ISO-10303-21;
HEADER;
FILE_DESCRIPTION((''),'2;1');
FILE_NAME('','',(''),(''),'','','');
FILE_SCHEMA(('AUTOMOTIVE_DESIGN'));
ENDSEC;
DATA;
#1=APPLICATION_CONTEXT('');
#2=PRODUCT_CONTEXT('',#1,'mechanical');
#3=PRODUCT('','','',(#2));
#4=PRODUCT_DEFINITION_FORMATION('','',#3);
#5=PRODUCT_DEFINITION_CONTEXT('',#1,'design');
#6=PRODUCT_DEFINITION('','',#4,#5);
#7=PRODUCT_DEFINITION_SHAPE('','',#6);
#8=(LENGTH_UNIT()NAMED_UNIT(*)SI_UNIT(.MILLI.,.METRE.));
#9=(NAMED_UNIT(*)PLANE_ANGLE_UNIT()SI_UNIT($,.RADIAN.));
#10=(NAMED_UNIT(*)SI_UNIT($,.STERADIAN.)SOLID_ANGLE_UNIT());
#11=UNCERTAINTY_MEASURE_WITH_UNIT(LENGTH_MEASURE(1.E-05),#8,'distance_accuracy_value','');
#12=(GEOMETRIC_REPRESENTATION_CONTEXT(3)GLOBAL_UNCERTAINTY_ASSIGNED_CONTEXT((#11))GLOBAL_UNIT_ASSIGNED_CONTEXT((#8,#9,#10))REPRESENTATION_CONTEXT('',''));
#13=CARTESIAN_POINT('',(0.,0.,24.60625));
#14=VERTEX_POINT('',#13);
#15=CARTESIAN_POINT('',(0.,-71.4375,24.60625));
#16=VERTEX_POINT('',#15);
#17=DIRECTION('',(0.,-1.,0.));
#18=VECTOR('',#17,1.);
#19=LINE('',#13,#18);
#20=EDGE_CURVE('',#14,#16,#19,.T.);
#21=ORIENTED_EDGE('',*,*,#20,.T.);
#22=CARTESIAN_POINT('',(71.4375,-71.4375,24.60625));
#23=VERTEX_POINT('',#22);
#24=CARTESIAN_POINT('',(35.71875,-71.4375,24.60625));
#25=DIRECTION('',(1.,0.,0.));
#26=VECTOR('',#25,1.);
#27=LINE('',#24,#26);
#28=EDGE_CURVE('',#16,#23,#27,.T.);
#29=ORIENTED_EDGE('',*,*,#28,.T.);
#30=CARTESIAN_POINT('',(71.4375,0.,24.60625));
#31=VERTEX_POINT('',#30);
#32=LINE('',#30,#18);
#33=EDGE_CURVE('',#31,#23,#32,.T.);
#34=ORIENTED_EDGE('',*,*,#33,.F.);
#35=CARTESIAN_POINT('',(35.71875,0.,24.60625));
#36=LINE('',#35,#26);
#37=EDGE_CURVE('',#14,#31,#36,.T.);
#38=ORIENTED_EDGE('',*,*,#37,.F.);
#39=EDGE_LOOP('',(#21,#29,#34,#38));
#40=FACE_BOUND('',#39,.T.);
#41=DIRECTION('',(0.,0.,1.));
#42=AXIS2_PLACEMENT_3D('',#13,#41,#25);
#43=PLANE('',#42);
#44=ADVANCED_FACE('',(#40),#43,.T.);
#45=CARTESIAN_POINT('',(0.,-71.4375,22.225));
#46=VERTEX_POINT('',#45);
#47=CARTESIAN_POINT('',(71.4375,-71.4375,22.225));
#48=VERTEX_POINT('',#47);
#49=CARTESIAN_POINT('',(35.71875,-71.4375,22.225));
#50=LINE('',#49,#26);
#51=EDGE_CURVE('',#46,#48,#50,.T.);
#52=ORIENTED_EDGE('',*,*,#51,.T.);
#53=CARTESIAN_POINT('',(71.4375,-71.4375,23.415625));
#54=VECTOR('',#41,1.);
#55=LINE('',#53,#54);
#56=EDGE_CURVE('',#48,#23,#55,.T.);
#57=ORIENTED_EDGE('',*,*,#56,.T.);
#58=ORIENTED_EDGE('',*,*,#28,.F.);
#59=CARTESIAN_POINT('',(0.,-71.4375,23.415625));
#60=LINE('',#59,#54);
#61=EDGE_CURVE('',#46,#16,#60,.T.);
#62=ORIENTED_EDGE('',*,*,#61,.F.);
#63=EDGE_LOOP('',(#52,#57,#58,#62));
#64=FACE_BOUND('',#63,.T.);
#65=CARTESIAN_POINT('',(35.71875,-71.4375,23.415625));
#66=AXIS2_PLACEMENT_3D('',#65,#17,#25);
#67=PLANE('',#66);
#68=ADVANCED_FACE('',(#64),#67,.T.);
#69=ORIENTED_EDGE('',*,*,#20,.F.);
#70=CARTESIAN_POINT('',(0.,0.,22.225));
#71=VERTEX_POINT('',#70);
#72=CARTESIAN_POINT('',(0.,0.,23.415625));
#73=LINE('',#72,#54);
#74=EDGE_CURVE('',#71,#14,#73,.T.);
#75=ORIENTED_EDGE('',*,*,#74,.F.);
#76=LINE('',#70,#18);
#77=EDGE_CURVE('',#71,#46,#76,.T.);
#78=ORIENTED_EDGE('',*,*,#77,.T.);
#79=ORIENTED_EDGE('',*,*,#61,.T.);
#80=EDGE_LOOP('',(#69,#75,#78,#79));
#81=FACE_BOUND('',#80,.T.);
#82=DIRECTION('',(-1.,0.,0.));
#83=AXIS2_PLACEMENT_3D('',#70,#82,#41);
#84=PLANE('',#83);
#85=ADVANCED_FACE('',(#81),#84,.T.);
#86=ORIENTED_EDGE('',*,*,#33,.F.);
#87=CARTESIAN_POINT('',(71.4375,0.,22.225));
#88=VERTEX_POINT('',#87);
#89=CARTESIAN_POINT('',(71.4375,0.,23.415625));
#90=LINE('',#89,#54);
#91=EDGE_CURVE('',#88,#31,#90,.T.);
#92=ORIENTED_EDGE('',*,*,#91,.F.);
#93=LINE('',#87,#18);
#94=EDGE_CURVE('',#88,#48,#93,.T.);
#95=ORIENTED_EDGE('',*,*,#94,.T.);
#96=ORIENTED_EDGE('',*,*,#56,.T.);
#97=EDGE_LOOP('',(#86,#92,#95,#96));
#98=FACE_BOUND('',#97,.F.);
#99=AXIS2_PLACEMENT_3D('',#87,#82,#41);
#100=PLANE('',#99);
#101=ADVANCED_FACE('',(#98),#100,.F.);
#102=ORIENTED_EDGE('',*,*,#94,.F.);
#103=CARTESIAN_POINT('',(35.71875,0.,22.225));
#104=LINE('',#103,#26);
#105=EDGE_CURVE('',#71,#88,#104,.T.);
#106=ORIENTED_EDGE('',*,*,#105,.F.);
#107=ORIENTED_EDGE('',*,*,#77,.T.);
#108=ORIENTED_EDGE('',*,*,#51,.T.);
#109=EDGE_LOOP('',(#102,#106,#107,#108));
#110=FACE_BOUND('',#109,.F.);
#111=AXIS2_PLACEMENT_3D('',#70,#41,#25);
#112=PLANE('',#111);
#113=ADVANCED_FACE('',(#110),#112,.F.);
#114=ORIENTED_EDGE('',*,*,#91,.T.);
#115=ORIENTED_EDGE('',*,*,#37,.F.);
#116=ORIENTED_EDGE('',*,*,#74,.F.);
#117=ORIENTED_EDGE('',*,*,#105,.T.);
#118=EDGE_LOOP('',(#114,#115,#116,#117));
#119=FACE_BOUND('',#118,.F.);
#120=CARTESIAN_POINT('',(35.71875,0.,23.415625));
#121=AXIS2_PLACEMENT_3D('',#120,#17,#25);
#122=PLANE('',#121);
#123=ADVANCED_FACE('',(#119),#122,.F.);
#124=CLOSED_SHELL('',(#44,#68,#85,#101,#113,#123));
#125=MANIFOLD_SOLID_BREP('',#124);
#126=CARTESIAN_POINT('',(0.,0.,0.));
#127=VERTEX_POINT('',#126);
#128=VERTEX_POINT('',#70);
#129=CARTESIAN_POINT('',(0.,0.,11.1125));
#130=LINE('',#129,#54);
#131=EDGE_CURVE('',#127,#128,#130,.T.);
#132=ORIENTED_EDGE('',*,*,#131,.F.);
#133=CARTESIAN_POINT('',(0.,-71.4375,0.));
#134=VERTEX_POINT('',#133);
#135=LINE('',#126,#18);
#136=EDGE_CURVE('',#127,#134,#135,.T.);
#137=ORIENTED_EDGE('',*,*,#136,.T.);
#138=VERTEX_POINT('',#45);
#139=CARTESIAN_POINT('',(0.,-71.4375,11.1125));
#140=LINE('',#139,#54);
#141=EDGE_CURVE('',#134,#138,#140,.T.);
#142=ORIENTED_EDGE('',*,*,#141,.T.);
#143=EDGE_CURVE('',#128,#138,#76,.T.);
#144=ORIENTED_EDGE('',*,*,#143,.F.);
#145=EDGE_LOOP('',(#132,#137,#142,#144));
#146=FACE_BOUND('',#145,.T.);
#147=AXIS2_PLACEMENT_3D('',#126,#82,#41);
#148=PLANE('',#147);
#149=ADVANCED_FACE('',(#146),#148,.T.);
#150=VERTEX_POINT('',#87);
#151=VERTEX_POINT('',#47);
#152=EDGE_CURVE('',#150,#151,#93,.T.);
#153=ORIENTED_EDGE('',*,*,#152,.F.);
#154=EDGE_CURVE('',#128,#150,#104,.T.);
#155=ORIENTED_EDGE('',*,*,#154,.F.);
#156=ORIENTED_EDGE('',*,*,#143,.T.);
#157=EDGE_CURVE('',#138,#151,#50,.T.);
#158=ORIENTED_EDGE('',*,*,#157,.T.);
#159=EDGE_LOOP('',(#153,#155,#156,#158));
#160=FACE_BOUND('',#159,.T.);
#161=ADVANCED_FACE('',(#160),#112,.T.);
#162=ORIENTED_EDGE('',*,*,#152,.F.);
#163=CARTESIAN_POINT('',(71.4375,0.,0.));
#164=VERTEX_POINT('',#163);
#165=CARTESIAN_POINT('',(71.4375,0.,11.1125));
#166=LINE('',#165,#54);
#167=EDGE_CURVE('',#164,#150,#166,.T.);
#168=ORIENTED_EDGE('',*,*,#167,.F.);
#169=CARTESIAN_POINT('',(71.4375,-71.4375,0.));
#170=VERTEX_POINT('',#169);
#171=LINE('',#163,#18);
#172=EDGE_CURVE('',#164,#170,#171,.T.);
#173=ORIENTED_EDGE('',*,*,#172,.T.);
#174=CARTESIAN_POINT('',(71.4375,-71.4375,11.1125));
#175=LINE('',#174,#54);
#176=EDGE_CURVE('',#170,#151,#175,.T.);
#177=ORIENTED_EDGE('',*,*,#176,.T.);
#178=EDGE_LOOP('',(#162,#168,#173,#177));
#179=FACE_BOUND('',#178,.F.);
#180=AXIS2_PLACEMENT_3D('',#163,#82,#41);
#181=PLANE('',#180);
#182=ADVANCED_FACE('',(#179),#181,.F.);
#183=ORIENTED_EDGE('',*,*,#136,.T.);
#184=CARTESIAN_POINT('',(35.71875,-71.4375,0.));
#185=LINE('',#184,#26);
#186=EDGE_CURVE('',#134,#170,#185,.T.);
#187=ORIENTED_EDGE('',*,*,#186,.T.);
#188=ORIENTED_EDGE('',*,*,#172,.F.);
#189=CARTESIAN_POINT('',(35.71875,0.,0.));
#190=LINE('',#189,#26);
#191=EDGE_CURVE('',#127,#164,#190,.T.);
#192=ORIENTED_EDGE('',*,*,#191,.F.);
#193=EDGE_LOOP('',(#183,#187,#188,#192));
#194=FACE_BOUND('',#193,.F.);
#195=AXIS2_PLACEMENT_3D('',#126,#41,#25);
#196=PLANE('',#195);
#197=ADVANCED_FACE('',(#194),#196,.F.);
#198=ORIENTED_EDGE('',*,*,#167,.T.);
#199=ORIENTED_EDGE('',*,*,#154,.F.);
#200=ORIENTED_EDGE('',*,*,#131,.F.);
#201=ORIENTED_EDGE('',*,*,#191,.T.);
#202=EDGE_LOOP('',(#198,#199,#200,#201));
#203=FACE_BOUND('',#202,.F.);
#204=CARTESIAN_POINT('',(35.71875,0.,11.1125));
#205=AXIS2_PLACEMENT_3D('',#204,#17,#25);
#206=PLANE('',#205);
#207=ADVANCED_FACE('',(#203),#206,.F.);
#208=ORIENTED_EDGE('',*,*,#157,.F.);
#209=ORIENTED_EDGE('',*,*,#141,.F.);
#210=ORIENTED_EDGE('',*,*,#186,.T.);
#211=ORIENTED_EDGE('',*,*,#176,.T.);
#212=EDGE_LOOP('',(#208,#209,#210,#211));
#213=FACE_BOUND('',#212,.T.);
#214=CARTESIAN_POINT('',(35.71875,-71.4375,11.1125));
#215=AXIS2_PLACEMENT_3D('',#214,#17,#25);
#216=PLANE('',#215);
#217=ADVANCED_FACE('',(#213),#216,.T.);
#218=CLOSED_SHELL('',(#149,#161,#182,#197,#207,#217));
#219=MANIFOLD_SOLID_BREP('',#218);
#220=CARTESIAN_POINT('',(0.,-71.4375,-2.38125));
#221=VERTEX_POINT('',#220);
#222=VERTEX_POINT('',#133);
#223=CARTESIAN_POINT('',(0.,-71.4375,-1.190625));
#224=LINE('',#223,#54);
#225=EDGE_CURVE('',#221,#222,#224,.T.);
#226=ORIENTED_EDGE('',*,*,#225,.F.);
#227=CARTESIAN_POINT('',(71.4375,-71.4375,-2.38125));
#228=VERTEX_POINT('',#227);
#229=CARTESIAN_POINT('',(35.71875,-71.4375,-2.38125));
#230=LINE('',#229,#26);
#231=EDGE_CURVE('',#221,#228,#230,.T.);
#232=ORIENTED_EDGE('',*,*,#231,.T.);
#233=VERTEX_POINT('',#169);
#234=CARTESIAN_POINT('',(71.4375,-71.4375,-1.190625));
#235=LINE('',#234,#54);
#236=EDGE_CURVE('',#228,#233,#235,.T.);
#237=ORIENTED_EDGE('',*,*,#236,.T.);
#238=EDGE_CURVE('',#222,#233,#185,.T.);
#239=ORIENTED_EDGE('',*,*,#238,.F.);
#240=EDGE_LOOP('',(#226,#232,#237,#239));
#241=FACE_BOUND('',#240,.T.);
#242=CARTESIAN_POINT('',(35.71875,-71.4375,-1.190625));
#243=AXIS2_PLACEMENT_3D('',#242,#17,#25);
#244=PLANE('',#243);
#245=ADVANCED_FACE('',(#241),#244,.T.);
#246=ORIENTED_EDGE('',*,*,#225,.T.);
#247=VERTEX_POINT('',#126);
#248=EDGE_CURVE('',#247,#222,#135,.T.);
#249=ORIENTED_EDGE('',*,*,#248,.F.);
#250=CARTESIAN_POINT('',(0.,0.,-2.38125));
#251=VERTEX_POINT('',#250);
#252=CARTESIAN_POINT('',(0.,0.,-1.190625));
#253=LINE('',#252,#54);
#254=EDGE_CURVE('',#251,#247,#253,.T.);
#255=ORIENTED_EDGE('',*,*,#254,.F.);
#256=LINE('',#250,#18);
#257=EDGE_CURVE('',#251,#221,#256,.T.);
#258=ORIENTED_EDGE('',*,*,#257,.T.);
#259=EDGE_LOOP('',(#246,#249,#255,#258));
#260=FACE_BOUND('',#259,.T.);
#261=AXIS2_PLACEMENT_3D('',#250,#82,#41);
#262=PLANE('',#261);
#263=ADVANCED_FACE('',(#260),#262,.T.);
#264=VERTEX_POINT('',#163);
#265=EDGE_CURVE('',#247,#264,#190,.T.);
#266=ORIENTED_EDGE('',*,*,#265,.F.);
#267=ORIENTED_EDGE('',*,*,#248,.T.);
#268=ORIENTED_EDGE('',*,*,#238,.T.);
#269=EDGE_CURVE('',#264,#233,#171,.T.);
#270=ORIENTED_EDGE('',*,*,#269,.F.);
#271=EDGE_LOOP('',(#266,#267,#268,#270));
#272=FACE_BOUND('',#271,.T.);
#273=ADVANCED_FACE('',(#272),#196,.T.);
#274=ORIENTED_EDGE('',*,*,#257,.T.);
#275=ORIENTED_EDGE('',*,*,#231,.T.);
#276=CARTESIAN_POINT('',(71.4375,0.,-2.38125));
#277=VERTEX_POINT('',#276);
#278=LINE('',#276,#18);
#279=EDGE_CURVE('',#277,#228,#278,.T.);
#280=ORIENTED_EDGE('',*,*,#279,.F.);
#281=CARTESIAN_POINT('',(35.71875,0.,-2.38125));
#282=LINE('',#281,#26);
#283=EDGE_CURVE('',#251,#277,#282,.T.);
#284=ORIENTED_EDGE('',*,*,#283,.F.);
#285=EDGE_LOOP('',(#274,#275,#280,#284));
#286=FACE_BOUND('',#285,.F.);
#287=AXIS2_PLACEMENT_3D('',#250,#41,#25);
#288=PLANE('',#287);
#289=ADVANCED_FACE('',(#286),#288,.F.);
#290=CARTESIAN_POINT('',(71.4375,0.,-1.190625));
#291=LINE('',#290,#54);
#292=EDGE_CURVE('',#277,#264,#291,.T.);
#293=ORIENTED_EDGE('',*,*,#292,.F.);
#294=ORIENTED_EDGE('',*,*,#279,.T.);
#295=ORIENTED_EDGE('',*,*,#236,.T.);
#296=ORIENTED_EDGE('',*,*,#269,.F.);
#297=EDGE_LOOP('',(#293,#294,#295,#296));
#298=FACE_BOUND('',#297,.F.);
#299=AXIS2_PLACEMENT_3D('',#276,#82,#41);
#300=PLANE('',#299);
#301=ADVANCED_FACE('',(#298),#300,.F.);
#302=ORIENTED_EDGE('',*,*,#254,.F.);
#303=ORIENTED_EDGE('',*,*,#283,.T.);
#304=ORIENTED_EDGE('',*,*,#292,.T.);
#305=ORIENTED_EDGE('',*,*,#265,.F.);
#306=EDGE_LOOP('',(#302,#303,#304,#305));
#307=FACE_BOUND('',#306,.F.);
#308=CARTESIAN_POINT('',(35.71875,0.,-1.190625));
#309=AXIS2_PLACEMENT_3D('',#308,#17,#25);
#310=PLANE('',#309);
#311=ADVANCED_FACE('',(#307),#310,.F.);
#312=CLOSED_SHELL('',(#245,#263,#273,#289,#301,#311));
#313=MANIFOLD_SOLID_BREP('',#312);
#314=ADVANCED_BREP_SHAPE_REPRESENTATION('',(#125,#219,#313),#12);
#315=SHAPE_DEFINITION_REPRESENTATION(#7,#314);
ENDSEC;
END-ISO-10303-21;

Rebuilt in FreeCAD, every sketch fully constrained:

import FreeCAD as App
import Part
import Sketcher

V = App.Vector
Q = App.Units.Quantity


def add_polygon(sketch, points):
    """Adds a closed chain of lines whose ends are joined by coincident constraints."""
    first, n = sketch.GeometryCount, len(points)
    for a, b in zip(points, points[1:] + points[:1]):
        sketch.addGeometry(Part.LineSegment(App.Vector(*a, 0), App.Vector(*b, 0)), False)
    for i in range(n):
        sketch.addConstraint(Sketcher.Constraint("Coincident", first + i, 2, first + (i + 1) % n, 1))

doc = App.newDocument("Part")
params = doc.addObject("Spreadsheet::Sheet", "Params")
for row, (alias, value) in enumerate([
    ("sketch1_width", "2.8125 in"),
    ("sketch1_height", "0.875 in"),
    ("pad1_length", "2.8125 in"),
    ("sketch2_width", "2.8125 in"),
    ("sketch2_height", "0.09375 in"),
    ("pad2_length", "2.8125 in"),
    ("sketch3_width", "2.8125 in"),
    ("sketch3_height", "0.09375 in"),
    ("pad3_length", "2.8125 in"),
], start=1):
    params.set(f"A{row}", alias)
    params.set(f"B{row}", "=" + value)
    params.setAlias(f"B{row}", alias)

body = doc.addObject("PartDesign::Body", "Body")

# Sketch on XZ plane
sketch1 = body.newObject("Sketcher::SketchObject", "Sketch")
sketch1.AttachmentSupport = (doc.getObject("XZ_Plane"), [""])
sketch1.MapMode = "FlatFace"
add_polygon(sketch1, [(0, 22.225), (0, 0), (71.4375, 0), (71.4375, 22.225)])  # lines 0-3
sketch1.addConstraint([
    Sketcher.Constraint("Vertical", 0),
    Sketcher.Constraint("Horizontal", 1),
    Sketcher.Constraint("Vertical", 2),
    Sketcher.Constraint("Horizontal", 3),
    Sketcher.Constraint("Coincident", 0, 2, -1, 1),
    Sketcher.Constraint("DistanceX", 1, 1, 1, 2, Q("2.8125 in")),
    Sketcher.Constraint("DistanceY", 0, 2, 0, 1, Q("0.875 in")),
])
sketch1.setExpression("Constraints[9]", "Params.sketch1_width")
sketch1.setExpression("Constraints[10]", "Params.sketch1_height")
pad1 = body.newObject("PartDesign::Pad", "Pad")
pad1.Profile = sketch1
pad1.setExpression("Length", "Params.pad1_length")
body2 = doc.addObject("PartDesign::Body", "Body001")

# Sketch on XZ plane
sketch2 = body2.newObject("Sketcher::SketchObject", "Sketch001")
sketch2.AttachmentSupport = (doc.getObject("XZ_Plane001"), [""])
sketch2.MapMode = "FlatFace"
add_polygon(sketch2, [(0, 24.60625), (0, 22.225), (71.4375, 22.225), (71.4375, 24.60625)])  # lines 0-3
sketch2.addConstraint([
    Sketcher.Constraint("Vertical", 0),
    Sketcher.Constraint("Horizontal", 1),
    Sketcher.Constraint("Vertical", 2),
    Sketcher.Constraint("Horizontal", 3),
    Sketcher.Constraint("PointOnObject", 0, 2, -2),
    Sketcher.Constraint("DistanceX", 1, 1, 1, 2, Q("2.8125 in")),
    Sketcher.Constraint("DistanceY", 0, 2, 0, 1, Q("0.09375 in")),
    Sketcher.Constraint("DistanceY", -1, 1, 0, 2, Q("0.875 in")),
])
sketch2.setExpression("Constraints[9]", "Params.sketch2_width")
sketch2.setExpression("Constraints[10]", "Params.sketch2_height")
pad2 = body2.newObject("PartDesign::Pad", "Pad001")
pad2.Profile = sketch2
pad2.setExpression("Length", "Params.pad2_length")
body3 = doc.addObject("PartDesign::Body", "Body002")

# Sketch on XZ plane
sketch3 = body3.newObject("Sketcher::SketchObject", "Sketch002")
sketch3.AttachmentSupport = (doc.getObject("XZ_Plane002"), [""])
sketch3.MapMode = "FlatFace"
add_polygon(sketch3, [(0, 0), (0, -2.38125), (71.4375, -2.38125), (71.4375, 0)])  # lines 0-3
sketch3.addConstraint([
    Sketcher.Constraint("Vertical", 0),
    Sketcher.Constraint("Horizontal", 1),
    Sketcher.Constraint("Vertical", 2),
    Sketcher.Constraint("Horizontal", 3),
    Sketcher.Constraint("Coincident", 3, 2, -1, 1),
    Sketcher.Constraint("DistanceX", 1, 1, 1, 2, Q("2.8125 in")),
    Sketcher.Constraint("DistanceY", 0, 2, 0, 1, Q("0.09375 in")),
])
sketch3.setExpression("Constraints[9]", "Params.sketch3_width")
sketch3.setExpression("Constraints[10]", "Params.sketch3_height")
pad3 = body3.newObject("PartDesign::Pad", "Pad002")
pad3.Profile = sketch3
pad3.setExpression("Length", "Params.pad3_length")

doc.recompute()
